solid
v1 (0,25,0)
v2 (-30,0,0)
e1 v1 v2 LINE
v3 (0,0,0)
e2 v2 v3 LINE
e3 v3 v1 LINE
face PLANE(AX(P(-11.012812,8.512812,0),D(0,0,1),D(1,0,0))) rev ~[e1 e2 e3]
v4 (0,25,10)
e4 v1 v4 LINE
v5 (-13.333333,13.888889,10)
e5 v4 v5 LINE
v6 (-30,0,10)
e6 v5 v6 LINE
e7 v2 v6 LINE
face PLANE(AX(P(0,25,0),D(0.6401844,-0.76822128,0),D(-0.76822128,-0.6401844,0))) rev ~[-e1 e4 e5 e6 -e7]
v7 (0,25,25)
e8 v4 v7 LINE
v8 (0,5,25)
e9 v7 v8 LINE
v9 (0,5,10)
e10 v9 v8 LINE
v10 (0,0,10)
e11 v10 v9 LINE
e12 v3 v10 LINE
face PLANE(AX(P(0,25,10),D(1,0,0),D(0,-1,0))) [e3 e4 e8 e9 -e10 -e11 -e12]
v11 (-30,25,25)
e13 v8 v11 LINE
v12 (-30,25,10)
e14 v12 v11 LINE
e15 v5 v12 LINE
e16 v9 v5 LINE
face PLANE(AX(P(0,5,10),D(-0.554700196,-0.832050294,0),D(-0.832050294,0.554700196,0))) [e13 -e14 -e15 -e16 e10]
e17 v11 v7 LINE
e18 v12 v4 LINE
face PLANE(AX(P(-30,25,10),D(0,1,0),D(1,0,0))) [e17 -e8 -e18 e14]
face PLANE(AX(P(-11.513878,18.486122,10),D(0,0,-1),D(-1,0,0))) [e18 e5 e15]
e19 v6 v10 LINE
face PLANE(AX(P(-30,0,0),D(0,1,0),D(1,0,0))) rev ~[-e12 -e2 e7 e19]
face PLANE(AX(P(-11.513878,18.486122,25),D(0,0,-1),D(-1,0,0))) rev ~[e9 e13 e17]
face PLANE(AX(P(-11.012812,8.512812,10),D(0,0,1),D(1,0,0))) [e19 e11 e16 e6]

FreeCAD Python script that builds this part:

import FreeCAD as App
import Part
import Sketcher
from FreeCAD import Vector
Q = App.Units.Quantity

doc = App.newDocument("Part")
body = doc.addObject("PartDesign::Body", "Body")

sketch1 = doc.addObject("Sketcher::SketchObject", "Sketch")
body.addObject(sketch1)
sketch1.AttachmentSupport = (doc.XY_Plane, [""])
sketch1.MapMode = "FlatFace"
sketch1.addGeometry([
    Part.LineSegment(Vector(0, 0, 0), Vector(0, 25, 0)),
    Part.LineSegment(Vector(0, 25, 0), Vector(-30, 0, 0)),
    Part.LineSegment(Vector(-30, 0, 0), Vector(0, 0, 0)),
], False)
sketch1.addConstraint([
    Sketcher.Constraint("Coincident", 0, 2, 1, 1),
    Sketcher.Constraint("Coincident", 1, 2, 2, 1),
    Sketcher.Constraint("Coincident", 2, 2, 0, 1),
    Sketcher.Constraint("Vertical", 0),
    Sketcher.Constraint("Horizontal", 2),
    Sketcher.Constraint("Coincident", 2, 2, -1, 1),
    Sketcher.Constraint("DistanceX", 2, 1, 2, 2, Q("30 mm")),
    Sketcher.Constraint("DistanceY", 0, 1, 0, 2, Q("25 mm")),
])
pad1 = doc.addObject("PartDesign::Pad", "Pad")
body.addObject(pad1)
pad1.Profile = sketch1
pad1.Length = 10

sketch2 = doc.addObject("Sketcher::SketchObject", "Sketch001")
body.addObject(sketch2)
sketch2.AttachmentSupport = (doc.XY_Plane, [""])
sketch2.MapMode = "FlatFace"
sketch2.AttachmentOffset = App.Placement(Vector(0, 0, 10), App.Rotation())
sketch2.addGeometry([
    Part.LineSegment(Vector(0, 25, 0), Vector(-30, 25, 0)),
    Part.LineSegment(Vector(-30, 25, 0), Vector(0, 5, 0)),
    Part.LineSegment(Vector(0, 5, 0), Vector(0, 25, 0)),
], False)
sketch2.addConstraint([
    Sketcher.Constraint("Coincident", 0, 2, 1, 1),
    Sketcher.Constraint("Coincident", 1, 2, 2, 1),
    Sketcher.Constraint("Coincident", 2, 2, 0, 1),
    Sketcher.Constraint("Horizontal", 0),
    Sketcher.Constraint("Vertical", 2),
    Sketcher.Constraint("PointOnObject", 1, 2, -2),
    Sketcher.Constraint("DistanceX", 0, 2, 0, 1, Q("30 mm")),
    Sketcher.Constraint("DistanceY", 2, 1, 2, 2, Q("20 mm")),
    Sketcher.Constraint("DistanceY", -1, 1, 0, 2, Q("25 mm")),
])
pad2 = doc.addObject("PartDesign::Pad", "Pad001")
body.addObject(pad2)
pad2.Profile = sketch2
pad2.Length = 15

doc.recompute()
